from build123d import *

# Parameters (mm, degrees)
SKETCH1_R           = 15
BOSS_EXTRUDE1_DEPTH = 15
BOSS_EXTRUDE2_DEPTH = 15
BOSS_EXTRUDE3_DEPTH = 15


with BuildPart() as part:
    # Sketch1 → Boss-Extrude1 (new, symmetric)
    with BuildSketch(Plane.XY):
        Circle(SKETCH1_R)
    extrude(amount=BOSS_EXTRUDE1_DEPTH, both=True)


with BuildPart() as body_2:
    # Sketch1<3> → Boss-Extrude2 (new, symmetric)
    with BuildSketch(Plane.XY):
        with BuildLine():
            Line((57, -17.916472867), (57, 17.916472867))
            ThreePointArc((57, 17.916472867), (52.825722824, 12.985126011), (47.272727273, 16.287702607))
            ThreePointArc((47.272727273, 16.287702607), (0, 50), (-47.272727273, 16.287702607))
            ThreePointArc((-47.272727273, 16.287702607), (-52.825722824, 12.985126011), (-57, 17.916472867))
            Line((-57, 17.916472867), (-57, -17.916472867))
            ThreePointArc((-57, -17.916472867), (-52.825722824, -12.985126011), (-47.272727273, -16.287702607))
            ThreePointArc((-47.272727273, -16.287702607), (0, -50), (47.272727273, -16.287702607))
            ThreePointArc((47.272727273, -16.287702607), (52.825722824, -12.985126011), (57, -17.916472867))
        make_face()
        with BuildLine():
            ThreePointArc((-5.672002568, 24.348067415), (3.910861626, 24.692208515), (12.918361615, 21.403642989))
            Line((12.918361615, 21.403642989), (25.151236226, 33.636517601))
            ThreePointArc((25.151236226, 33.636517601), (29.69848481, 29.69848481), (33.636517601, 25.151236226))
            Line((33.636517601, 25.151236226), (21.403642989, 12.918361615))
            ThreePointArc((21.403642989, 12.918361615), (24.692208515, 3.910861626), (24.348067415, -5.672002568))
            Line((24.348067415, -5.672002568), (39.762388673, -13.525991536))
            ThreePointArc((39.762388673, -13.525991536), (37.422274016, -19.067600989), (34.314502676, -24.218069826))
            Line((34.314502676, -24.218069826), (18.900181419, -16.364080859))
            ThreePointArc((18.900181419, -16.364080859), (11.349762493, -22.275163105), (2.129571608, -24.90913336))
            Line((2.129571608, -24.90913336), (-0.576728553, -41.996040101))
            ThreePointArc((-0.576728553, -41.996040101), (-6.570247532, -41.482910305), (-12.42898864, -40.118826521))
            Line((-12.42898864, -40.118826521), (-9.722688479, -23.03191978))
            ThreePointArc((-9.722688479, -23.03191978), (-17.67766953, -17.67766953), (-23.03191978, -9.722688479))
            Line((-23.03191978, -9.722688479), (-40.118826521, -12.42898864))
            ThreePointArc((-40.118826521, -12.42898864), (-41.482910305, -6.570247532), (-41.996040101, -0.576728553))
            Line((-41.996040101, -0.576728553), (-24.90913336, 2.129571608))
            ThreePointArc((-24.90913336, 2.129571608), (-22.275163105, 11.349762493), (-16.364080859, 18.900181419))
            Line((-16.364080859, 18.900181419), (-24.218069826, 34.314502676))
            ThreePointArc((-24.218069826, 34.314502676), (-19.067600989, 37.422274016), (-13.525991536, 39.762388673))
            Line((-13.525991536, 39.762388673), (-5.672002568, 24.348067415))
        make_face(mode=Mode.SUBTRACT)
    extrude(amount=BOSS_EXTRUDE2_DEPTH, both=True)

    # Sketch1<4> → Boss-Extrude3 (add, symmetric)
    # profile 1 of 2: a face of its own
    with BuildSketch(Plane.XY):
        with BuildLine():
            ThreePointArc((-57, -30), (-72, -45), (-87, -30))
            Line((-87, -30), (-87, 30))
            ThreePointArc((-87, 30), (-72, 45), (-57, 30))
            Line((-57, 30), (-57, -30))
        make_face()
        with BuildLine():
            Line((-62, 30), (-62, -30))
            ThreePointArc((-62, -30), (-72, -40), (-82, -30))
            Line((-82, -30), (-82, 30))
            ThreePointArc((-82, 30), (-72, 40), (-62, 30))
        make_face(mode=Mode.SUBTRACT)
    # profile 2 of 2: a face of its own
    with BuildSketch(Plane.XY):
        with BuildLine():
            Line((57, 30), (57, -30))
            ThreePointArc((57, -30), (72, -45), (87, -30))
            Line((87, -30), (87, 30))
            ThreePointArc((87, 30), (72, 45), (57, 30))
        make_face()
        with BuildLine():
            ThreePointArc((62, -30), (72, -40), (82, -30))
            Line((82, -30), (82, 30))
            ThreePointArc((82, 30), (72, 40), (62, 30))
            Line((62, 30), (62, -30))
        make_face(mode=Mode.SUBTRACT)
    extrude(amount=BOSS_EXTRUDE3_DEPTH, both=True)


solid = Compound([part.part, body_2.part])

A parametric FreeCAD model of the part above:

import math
import FreeCAD as App
import Part
import Sketcher
from FreeCAD import Vector
Q = App.Units.Quantity

doc = App.newDocument("Part")
body = doc.addObject("PartDesign::Body", "Body")

# Sketch on XY plane
sketch1 = doc.addObject("Sketcher::SketchObject", "Sketch")
body.addObject(sketch1)
sketch1.AttachmentSupport = (doc.XY_Plane, [""])
sketch1.MapMode = "FlatFace"
sketch1.addGeometry(Part.Circle(Vector(0, 0, 0), Vector(0, 0, 1), 15), False)
sketch1.addConstraint([
    Sketcher.Constraint("Coincident", 0, 3, -1, 1),
    Sketcher.Constraint("Diameter", 0, 30.0),
])
pad1 = doc.addObject("PartDesign::Pad", "Pad")
body.addObject(pad1)
pad1.Profile = sketch1
pad1.Length = 30
pad1.Midplane = True
body2 = doc.addObject("PartDesign::Body", "Body001")

# Sketch on XY plane
sketch2 = doc.addObject("Sketcher::SketchObject", "Sketch001")
body2.addObject(sketch2)
sketch2.AttachmentSupport = (doc.getObject("XY_Plane001"), [""])
sketch2.MapMode = "FlatFace"
sketch2.addGeometry([
    Part.LineSegment(Vector(57, -17.916473, 0), Vector(57, 17.916473, 0)),  # 0
    Part.ArcOfCircle(Part.Circle(Vector(52, 17.916473, 0), Vector(0, 0, 1), 5), math.radians(-160.988735), math.radians(0)),  # 1
    Part.ArcOfCircle(Part.Circle(Vector(0, 0, 0), Vector(0, 0, 1), 50), math.radians(19.011265), math.radians(160.988735)),  # 2
    Part.ArcOfCircle(Part.Circle(Vector(-52, 17.916473, 0), Vector(0, 0, 1), 5), math.radians(180), math.radians(340.988735)),  # 3
    Part.LineSegment(Vector(-57, 17.916473, 0), Vector(-57, -17.916473, 0)),  # 4
    Part.ArcOfCircle(Part.Circle(Vector(-52, -17.916473, 0), Vector(0, 0, 1), 5), math.radians(19.011265), math.radians(180)),  # 5
    Part.ArcOfCircle(Part.Circle(Vector(0, 0, 0), Vector(0, 0, 1), 50), math.radians(-160.988735), math.radians(-19.011265)),  # 6
    Part.ArcOfCircle(Part.Circle(Vector(52, -17.916473, 0), Vector(0, 0, 1), 5), math.radians(0), math.radians(160.988735)),  # 7
    Part.LineSegment(Vector(-13.525992, 39.762389, 0), Vector(-5.672003, 24.348067, 0)),  # 8
    Part.ArcOfCircle(Part.Circle(Vector(0, 0, 0), Vector(0, 0, 1), 25), math.radians(58.88654), math.radians(103.11346)),  # 9
    Part.LineSegment(Vector(12.918362, 21.403643, 0), Vector(25.151236, 33.636518, 0)),  # 10
    Part.ArcOfCircle(Part.Circle(Vector(0, 0, 0), Vector(0, 0, 1), 42), math.radians(36.786789), math.radians(53.213211)),  # 11
    Part.LineSegment(Vector(33.636518, 25.151236, 0), Vector(21.403643, 12.918362, 0)),  # 12
    Part.ArcOfCircle(Part.Circle(Vector(0, 0, 0), Vector(0, 0, 1), 25), math.radians(-13.11346), math.radians(31.11346)),  # 13
    Part.LineSegment(Vector(24.348067, -5.672003, 0), Vector(39.762389, -13.525992, 0)),  # 14
    Part.ArcOfCircle(Part.Circle(Vector(0, 0, 0), Vector(0, 0, 1), 42), math.radians(-35.213211), math.radians(-18.786789)),  # 15
    Part.LineSegment(Vector(34.314503, -24.21807, 0), Vector(18.900181, -16.364081, 0)),  # 16
    Part.ArcOfCircle(Part.Circle(Vector(0, 0, 0), Vector(0, 0, 1), 25), math.radians(-85.11346), math.radians(-40.88654)),  # 17
    Part.LineSegment(Vector(2.129572, -24.909133, 0), Vector(-0.576729, -41.99604, 0)),  # 18
    Part.ArcOfCircle(Part.Circle(Vector(0, 0, 0), Vector(0, 0, 1), 42), math.radians(-107.213211), math.radians(-90.786789)),  # 19
    Part.LineSegment(Vector(-12.428989, -40.118827, 0), Vector(-9.722688, -23.03192, 0)),  # 20
    Part.ArcOfCircle(Part.Circle(Vector(0, 0, 0), Vector(0, 0, 1), 25), math.radians(-157.11346), math.radians(-112.88654)),  # 21
    Part.LineSegment(Vector(-23.03192, -9.722688, 0), Vector(-40.118827, -12.428989, 0)),  # 22
    Part.ArcOfCircle(Part.Circle(Vector(0, 0, 0), Vector(0, 0, 1), 42), math.radians(-179.213211), math.radians(-162.786789)),  # 23
    Part.LineSegment(Vector(-41.99604, -0.576729, 0), Vector(-24.909133, 2.129572, 0)),  # 24
    Part.ArcOfCircle(Part.Circle(Vector(0, 0, 0), Vector(0, 0, 1), 25), math.radians(130.88654), math.radians(175.11346)),  # 25
    Part.LineSegment(Vector(-16.364081, 18.900181, 0), Vector(-24.21807, 34.314503, 0)),  # 26
    Part.ArcOfCircle(Part.Circle(Vector(0, 0, 0), Vector(0, 0, 1), 42), math.radians(108.786789), math.radians(125.213211)),  # 27
], False)
sketch2.addConstraint([
    Sketcher.Constraint("Tangent", 0, 2, 1, 2),
    Sketcher.Constraint("Tangent", 1, 1, 2, 1),
    Sketcher.Constraint("Tangent", 2, 2, 3, 2),
    Sketcher.Constraint("Tangent", 3, 1, 4, 1),
    Sketcher.Constraint("Tangent", 4, 2, 5, 2),
    Sketcher.Constraint("Tangent", 5, 1, 6, 1),
    Sketcher.Constraint("Tangent", 6, 2, 7, 2),
    Sketcher.Constraint("Tangent", 7, 1, 0, 1),
    Sketcher.Constraint("Coincident", 8, 2, 9, 2),
    Sketcher.Constraint("Coincident", 9, 1, 10, 1),
    Sketcher.Constraint("Coincident", 10, 2, 11, 2),
    Sketcher.Constraint("Coincident", 11, 1, 12, 1),
    Sketcher.Constraint("Coincident", 12, 2, 13, 2),
    Sketcher.Constraint("Coincident", 13, 1, 14, 1),
    Sketcher.Constraint("Coincident", 14, 2, 15, 2),
    Sketcher.Constraint("Coincident", 15, 1, 16, 1),
    Sketcher.Constraint("Coincident", 16, 2, 17, 2),
    Sketcher.Constraint("Coincident", 17, 1, 18, 1),
    Sketcher.Constraint("Coincident", 18, 2, 19, 2),
    Sketcher.Constraint("Coincident", 19, 1, 20, 1),
    Sketcher.Constraint("Coincident", 20, 2, 21, 2),
    Sketcher.Constraint("Coincident", 21, 1, 22, 1),
    Sketcher.Constraint("Coincident", 22, 2, 23, 2),
    Sketcher.Constraint("Coincident", 23, 1, 24, 1),
    Sketcher.Constraint("Coincident", 24, 2, 25, 2),
    Sketcher.Constraint("Coincident", 25, 1, 26, 1),
    Sketcher.Constraint("Coincident", 26, 2, 27, 2),
    Sketcher.Constraint("Coincident", 27, 1, 8, 1),
    Sketcher.Constraint("Vertical", 0),
    Sketcher.Constraint("Vertical", 4),
    Sketcher.Constraint("Coincident", 2, 3, -1, 1),
    Sketcher.Constraint("Coincident", 6, 3, -1, 1),
    Sketcher.Constraint("Coincident", 9, 3, -1, 1),
    Sketcher.Constraint("Coincident", 11, 3, -1, 1),
    Sketcher.Constraint("Coincident", 13, 3, -1, 1),
    Sketcher.Constraint("Coincident", 15, 3, -1, 1),
    Sketcher.Constraint("Coincident", 17, 3, -1, 1),
    Sketcher.Constraint("Coincident", 19, 3, -1, 1),
    Sketcher.Constraint("Coincident", 21, 3, -1, 1),
    Sketcher.Constraint("Coincident", 23, 3, -1, 1),
    Sketcher.Constraint("Coincident", 25, 3, -1, 1),
    Sketcher.Constraint("Coincident", 27, 3, -1, 1),
    Sketcher.Constraint("Equal", 1, 3),
    Sketcher.Constraint("Equal", 3, 5),
    Sketcher.Constraint("Equal", 2, 6),
    Sketcher.Constraint("Equal", 5, 7),
    Sketcher.Constraint("Equal", 9, 13),
    Sketcher.Constraint("Equal", 11, 15),
    Sketcher.Constraint("Equal", 13, 17),
    Sketcher.Constraint("Equal", 15, 19),
    Sketcher.Constraint("Equal", 17, 21),
    Sketcher.Constraint("Equal", 19, 23),
    Sketcher.Constraint("Equal", 21, 25),
    Sketcher.Constraint("Equal", 23, 27),
    Sketcher.Constraint("Parallel", 10, 12),
    Sketcher.Constraint("Parallel", 14, 16),
    Sketcher.Constraint("Parallel", 18, 20),
    Sketcher.Constraint("Parallel", 22, 24),
    Sketcher.Constraint("Parallel", 8, 26),
    Sketcher.Constraint("Horizontal", 1, 3, 3, 3),
    Sketcher.Constraint("Equal", 8, 10),
    Sketcher.Constraint("Equal", 10, 12),
    Sketcher.Constraint("Equal", 12, 14),
    Sketcher.Constraint("Equal", 14, 16),
    Sketcher.Constraint("Equal", 16, 18),
    Sketcher.Constraint("Equal", 18, 20),
    Sketcher.Constraint("Equal", 20, 22),
    Sketcher.Constraint("Equal", 22, 24),
    Sketcher.Constraint("Equal", 24, 26),
    Sketcher.Constraint("Radius", 1, 5.0),
    Sketcher.Constraint("Radius", 2, 50.0),
    Sketcher.Constraint("Radius", 9, 25.0),
    Sketcher.Constraint("Radius", 11, 42.0),
    Sketcher.Constraint("Angle", 8, Q("-63 deg")),
    Sketcher.Constraint("Angle", 10, Q("45 deg")),
    Sketcher.Constraint("Angle", 14, Q("-27 deg")),
    Sketcher.Constraint("Angle", 18, Q("-99 deg")),
    Sketcher.Constraint("Angle", 22, Q("-171 deg")),
    Sketcher.Constraint("DistanceX", -1, 1, 1, 3, 52.0),
    Sketcher.Constraint("DistanceX", 5, 1, 22, 2, 7.153901),
])
pad2 = doc.addObject("PartDesign::Pad", "Pad001")
body2.addObject(pad2)
pad2.Profile = sketch2
pad2.Length = 30
pad2.Midplane = True

# Sketch on XY plane
sketch3 = doc.addObject("Sketcher::SketchObject", "Sketch002")
body2.addObject(sketch3)
sketch3.AttachmentSupport = (doc.getObject("XY_Plane001"), [""])
sketch3.MapMode = "FlatFace"
sketch3.addGeometry([
    Part.ArcOfCircle(Part.Circle(Vector(-72, -30, 0), Vector(0, 0, 1), 15), math.radians(180), math.radians(360)),  # 0
    Part.LineSegment(Vector(-57, -30, 0), Vector(-57, 30, 0)),  # 1
    Part.ArcOfCircle(Part.Circle(Vector(-72, 30, 0), Vector(0, 0, 1), 15), math.radians(0), math.radians(180)),  # 2
    Part.LineSegment(Vector(-87, 30, 0), Vector(-87, -30, 0)),  # 3
    Part.LineSegment(Vector(-62, 30, 0), Vector(-62, -30, 0)),  # 4
    Part.ArcOfCircle(Part.Circle(Vector(-72, -30, 0), Vector(0, 0, 1), 10), math.radians(180), math.radians(360)),  # 5
    Part.LineSegment(Vector(-82, -30, 0), Vector(-82, 30, 0)),  # 6
    Part.ArcOfCircle(Part.Circle(Vector(-72, 30, 0), Vector(0, 0, 1), 10), math.radians(0), math.radians(180)),  # 7
    Part.LineSegment(Vector(57, 30, 0), Vector(57, -30, 0)),  # 8
    Part.ArcOfCircle(Part.Circle(Vector(72, -30, 0), Vector(0, 0, 1), 15), math.radians(180), math.radians(360)),  # 9
    Part.LineSegment(Vector(87, -30, 0), Vector(87, 30, 0)),  # 10
    Part.ArcOfCircle(Part.Circle(Vector(72, 30, 0), Vector(0, 0, 1), 15), math.radians(0), math.radians(180)),  # 11
    Part.ArcOfCircle(Part.Circle(Vector(72, -30, 0), Vector(0, 0, 1), 10), math.radians(180), math.radians(360)),  # 12
    Part.LineSegment(Vector(62, -30, 0), Vector(62, 30, 0)),  # 13
    Part.ArcOfCircle(Part.Circle(Vector(72, 30, 0), Vector(0, 0, 1), 10), math.radians(0), math.radians(180)),  # 14
    Part.LineSegment(Vector(82, 30, 0), Vector(82, -30, 0)),  # 15
], False)
sketch3.addConstraint([
    Sketcher.Constraint("Tangent", 0, 2, 1, 1),
    Sketcher.Constraint("Tangent", 1, 2, 2, 1),
    Sketcher.Constraint("Tangent", 2, 2, 3, 1),
    Sketcher.Constraint("Tangent", 3, 2, 0, 1),
    Sketcher.Constraint("Tangent", 4, 2, 5, 2),
    Sketcher.Constraint("Tangent", 5, 1, 6, 1),
    Sketcher.Constraint("Tangent", 6, 2, 7, 2),
    Sketcher.Constraint("Tangent", 7, 1, 4, 1),
    Sketcher.Constraint("Tangent", 8, 2, 9, 1),
    Sketcher.Constraint("Tangent", 9, 2, 10, 1),
    Sketcher.Constraint("Tangent", 10, 2, 11, 1),
    Sketcher.Constraint("Tangent", 11, 2, 8, 1),
    Sketcher.Constraint("Tangent", 12, 1, 13, 1),
    Sketcher.Constraint("Tangent", 13, 2, 14, 2),
    Sketcher.Constraint("Tangent", 14, 1, 15, 1),
    Sketcher.Constraint("Tangent", 15, 2, 12, 2),
    Sketcher.Constraint("Vertical", 1),
    Sketcher.Constraint("Vertical", 3),
    Sketcher.Constraint("Vertical", 4),
    Sketcher.Constraint("Vertical", 6),
    Sketcher.Constraint("Vertical", 8),
    Sketcher.Constraint("Vertical", 10),
    Sketcher.Constraint("Vertical", 13),
    Sketcher.Constraint("Vertical", 15),
    Sketcher.Constraint("Coincident", 5, 3, 0, 3),
    Sketcher.Constraint("Coincident", 12, 3, 9, 3),
    Sketcher.Constraint("Equal", 2, 9),
    Sketcher.Constraint("Equal", 7, 12),
    Sketcher.Constraint("Symmetric", 2, 3, 9, 3, -1, 1),
    Sketcher.Constraint("Horizontal", 5, 3, 9, 3),
    Sketcher.Constraint("Horizontal", 7, 3, 11, 3),
    Sketcher.Constraint("Horizontal", 7, 3, 14, 3),
    Sketcher.Constraint("Horizontal", 14, 3, 1, 2),
    Sketcher.Constraint("Radius", 0, 15.0),
    Sketcher.Constraint("Radius", 5, 10.0),
    Sketcher.Constraint("DistanceY", 1, 1, 1, 2, 60.0),
    Sketcher.Constraint("DistanceX", 0, 3, -1, 1, 72.0),
])
pad3 = doc.addObject("PartDesign::Pad", "Pad002")
body2.addObject(pad3)
pad3.Profile = sketch3
pad3.Length = 30
pad3.Midplane = True

doc.recompute()
